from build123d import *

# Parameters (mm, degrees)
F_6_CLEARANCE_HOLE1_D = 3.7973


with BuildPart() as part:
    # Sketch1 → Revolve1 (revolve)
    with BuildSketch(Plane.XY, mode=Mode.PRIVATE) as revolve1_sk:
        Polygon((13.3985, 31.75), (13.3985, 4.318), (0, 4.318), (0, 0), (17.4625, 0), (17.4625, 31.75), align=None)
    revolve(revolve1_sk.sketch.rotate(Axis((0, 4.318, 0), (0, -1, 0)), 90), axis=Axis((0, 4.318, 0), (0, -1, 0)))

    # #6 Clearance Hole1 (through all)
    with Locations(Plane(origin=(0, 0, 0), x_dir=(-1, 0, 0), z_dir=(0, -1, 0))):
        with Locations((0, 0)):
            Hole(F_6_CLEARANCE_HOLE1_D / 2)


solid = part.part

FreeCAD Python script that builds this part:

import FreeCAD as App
import Part
import Sketcher
from FreeCAD import Vector
Q = App.Units.Quantity


def add_polygon(sketch, points):
    """Adds a closed chain of lines whose ends are joined by coincident constraints."""
    first, n = sketch.GeometryCount, len(points)
    for a, b in zip(points, points[1:] + points[:1]):
        sketch.addGeometry(Part.LineSegment(App.Vector(*a, 0), App.Vector(*b, 0)), False)
    for i in range(n):
        sketch.addConstraint(Sketcher.Constraint("Coincident", first + i, 2, first + (i + 1) % n, 1))

doc = App.newDocument("Part")
body = doc.addObject("PartDesign::Body", "Body")

sketch1 = doc.addObject("Sketcher::SketchObject", "Sketch")
body.addObject(sketch1)
sketch1.AttachmentSupport = (doc.XY_Plane, [""])
sketch1.MapMode = "FlatFace"
add_polygon(sketch1, [(13.4, 31.8), (13.4, 4.3), (0, 4.3), (0, 0), (17.5, 0), (17.5, 31.8)])
sketch1.addConstraint(Sketcher.Constraint("Vertical", 0))
sketch1.addConstraint(Sketcher.Constraint("Horizontal", 1))
sketch1.addConstraint(Sketcher.Constraint("Vertical", 2))
sketch1.addConstraint(Sketcher.Constraint("Horizontal", 3))
sketch1.addConstraint(Sketcher.Constraint("Vertical", 4))
sketch1.addConstraint(Sketcher.Constraint("Horizontal", 5))
sketch1.addConstraint(Sketcher.Constraint("Coincident", 2, 2, -1, 1))
sketch1.addConstraint(Sketcher.Constraint("DistanceX", 5, 2, 5, 1, Q("0.16 in")))
sketch1.addConstraint(Sketcher.Constraint("DistanceY", 0, 2, 0, 1, Q("1.08 in")))
sketch1.addConstraint(Sketcher.Constraint("DistanceY", 2, 2, 2, 1, Q("0.17 in")))
sketch1.addConstraint(Sketcher.Constraint("DistanceX", 3, 1, 3, 2, Q("0.6875 in")))
revolution = doc.addObject("PartDesign::Revolution", "Revolution")
body.addObject(revolution)
revolution.Profile = sketch1
revolution.ReferenceAxis = (sketch1, ["V_Axis"])
revolution.Angle = 360

sketch2 = doc.addObject("Sketcher::SketchObject", "Sketch001")
body.addObject(sketch2)
sketch2.AttachmentSupport = (doc.XZ_Plane, [""])
sketch2.MapMode = "FlatFace"
sketch2.addGeometry(Part.Circle(Vector(0, 0, 0), Vector(0, 0, 1), 1.9), False)
sketch2.addConstraint(Sketcher.Constraint("Coincident", 0, 3, -1, 1))
sketch2.addConstraint(Sketcher.Constraint("Diameter", 0, Q("0.1495 in")))
doc.recompute()
hole = doc.addObject("PartDesign::Hole", "Hole")
body.addObject(hole)
hole.Profile = sketch2
hole.ThreadType = "None"
hole.Diameter = Q("0.1495 in")
hole.DepthType = "ThroughAll"

doc.recompute()
